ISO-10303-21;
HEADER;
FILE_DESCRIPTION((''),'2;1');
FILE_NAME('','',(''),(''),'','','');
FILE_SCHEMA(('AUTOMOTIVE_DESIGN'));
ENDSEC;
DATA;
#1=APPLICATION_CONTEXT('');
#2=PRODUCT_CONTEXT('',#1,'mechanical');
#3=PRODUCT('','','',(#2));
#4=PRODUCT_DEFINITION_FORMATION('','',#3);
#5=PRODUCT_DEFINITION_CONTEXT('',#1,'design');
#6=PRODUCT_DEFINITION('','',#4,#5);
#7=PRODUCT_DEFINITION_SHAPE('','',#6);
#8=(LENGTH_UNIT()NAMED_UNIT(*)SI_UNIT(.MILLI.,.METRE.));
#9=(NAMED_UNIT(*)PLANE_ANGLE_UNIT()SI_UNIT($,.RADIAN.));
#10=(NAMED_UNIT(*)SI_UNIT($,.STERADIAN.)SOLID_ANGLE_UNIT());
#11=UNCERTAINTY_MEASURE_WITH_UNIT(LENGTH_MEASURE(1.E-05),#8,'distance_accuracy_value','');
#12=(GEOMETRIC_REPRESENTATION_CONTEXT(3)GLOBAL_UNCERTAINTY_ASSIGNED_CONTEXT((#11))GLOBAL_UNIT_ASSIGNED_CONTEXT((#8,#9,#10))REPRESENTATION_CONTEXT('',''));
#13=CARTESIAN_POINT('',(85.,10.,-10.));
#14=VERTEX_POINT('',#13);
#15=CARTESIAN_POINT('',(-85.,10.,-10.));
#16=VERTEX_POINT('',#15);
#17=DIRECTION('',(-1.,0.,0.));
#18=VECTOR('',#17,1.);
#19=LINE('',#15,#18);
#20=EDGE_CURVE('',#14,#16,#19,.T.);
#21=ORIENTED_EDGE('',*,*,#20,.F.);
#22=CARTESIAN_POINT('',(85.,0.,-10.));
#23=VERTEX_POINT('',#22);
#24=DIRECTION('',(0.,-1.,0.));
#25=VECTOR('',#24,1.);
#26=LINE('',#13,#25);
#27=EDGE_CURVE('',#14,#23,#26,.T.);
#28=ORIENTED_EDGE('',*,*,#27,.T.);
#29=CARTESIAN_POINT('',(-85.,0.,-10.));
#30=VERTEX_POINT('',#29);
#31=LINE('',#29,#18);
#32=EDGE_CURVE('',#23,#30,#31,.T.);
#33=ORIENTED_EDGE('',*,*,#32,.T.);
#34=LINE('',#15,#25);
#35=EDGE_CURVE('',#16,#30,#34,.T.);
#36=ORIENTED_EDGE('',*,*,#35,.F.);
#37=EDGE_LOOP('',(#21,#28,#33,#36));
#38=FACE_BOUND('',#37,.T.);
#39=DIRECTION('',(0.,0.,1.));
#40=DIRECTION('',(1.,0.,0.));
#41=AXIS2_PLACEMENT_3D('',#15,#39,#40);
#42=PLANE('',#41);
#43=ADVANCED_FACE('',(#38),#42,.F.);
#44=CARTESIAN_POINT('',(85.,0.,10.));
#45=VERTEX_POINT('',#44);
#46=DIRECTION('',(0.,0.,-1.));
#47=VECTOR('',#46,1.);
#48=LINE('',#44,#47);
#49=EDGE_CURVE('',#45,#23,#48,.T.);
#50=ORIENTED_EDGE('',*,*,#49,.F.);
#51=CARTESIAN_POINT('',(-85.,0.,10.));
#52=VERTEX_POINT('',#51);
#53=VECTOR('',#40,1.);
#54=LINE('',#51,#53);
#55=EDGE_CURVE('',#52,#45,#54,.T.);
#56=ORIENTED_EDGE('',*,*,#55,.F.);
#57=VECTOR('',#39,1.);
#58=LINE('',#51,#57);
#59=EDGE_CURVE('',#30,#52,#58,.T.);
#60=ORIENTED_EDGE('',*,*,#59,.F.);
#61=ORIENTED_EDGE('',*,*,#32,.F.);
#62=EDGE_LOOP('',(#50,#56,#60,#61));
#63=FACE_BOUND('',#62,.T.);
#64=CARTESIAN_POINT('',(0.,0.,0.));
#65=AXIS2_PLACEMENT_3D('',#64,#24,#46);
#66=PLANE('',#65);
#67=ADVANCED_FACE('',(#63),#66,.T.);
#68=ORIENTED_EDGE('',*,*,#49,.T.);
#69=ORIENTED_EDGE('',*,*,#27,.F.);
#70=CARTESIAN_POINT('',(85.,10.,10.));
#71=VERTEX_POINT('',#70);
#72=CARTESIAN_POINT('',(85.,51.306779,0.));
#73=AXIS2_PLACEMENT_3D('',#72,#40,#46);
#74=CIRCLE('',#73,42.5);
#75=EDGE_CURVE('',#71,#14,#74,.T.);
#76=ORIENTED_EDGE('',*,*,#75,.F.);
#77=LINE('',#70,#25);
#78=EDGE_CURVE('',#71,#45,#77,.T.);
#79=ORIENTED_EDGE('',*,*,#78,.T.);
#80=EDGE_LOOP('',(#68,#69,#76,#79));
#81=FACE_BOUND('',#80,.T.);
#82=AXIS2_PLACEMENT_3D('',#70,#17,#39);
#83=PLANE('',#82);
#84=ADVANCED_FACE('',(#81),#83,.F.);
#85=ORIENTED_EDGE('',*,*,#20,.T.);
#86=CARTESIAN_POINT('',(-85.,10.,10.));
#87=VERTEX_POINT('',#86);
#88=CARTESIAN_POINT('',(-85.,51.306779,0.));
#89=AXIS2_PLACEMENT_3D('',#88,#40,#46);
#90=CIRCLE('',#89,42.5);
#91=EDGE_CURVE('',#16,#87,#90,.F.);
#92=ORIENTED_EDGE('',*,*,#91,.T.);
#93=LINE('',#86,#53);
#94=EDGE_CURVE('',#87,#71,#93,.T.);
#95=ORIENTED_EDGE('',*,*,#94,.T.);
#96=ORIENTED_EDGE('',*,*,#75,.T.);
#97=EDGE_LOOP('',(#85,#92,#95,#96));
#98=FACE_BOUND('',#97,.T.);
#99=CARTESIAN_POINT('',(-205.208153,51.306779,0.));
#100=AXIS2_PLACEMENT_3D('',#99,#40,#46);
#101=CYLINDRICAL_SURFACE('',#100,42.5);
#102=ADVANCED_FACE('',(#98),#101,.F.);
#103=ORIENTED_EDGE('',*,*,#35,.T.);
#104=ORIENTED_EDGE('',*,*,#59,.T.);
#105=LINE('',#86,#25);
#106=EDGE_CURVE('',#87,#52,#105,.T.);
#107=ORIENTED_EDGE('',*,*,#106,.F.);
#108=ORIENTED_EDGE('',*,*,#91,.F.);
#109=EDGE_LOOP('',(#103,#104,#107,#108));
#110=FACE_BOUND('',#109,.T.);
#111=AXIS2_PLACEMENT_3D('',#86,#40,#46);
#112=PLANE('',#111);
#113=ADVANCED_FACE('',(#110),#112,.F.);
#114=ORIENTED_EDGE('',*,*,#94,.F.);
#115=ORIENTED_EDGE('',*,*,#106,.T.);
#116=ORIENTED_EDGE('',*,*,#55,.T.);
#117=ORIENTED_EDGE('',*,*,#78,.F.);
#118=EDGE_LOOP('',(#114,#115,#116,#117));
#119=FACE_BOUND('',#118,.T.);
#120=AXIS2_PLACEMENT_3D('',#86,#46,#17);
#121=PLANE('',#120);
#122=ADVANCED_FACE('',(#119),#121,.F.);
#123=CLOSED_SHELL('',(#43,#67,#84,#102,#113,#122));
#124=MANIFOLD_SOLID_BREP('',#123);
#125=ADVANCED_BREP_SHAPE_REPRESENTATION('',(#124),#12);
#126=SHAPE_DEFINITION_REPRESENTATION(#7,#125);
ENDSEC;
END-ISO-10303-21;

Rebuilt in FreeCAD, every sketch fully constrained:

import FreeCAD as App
import Part
import Sketcher
from FreeCAD import Vector

doc = App.newDocument("Part")
body = doc.addObject("PartDesign::Body", "Body")

# Sketch on XZ plane
sketch1 = doc.addObject("Sketcher::SketchObject", "Sketch")
body.addObject(sketch1)
sketch1.AttachmentSupport = (doc.XZ_Plane, [""])
sketch1.MapMode = "FlatFace"
sketch1.addGeometry([
    Part.LineSegment(Vector(-85, -10, 0), Vector(-85, 10, 0)),
    Part.LineSegment(Vector(-85, 10, 0), Vector(85, 10, 0)),
    Part.LineSegment(Vector(85, 10, 0), Vector(85, -10, 0)),
    Part.LineSegment(Vector(85, -10, 0), Vector(-85, -10, 0)),
], False)
sketch1.addConstraint([
    Sketcher.Constraint("Coincident", 0, 2, 1, 1),
    Sketcher.Constraint("Coincident", 1, 2, 2, 1),
    Sketcher.Constraint("Coincident", 2, 2, 3, 1),
    Sketcher.Constraint("Coincident", 3, 2, 0, 1),
    Sketcher.Constraint("Vertical", 0),
    Sketcher.Constraint("Horizontal", 1),
    Sketcher.Constraint("Vertical", 2),
    Sketcher.Constraint("Horizontal", 3),
    Sketcher.Constraint("Symmetric", 0, 2, 2, 2, -1, 1),
    Sketcher.Constraint("DistanceX", 1, 1, 1, 2, 170.0),
    Sketcher.Constraint("DistanceY", 0, 1, 0, 2, 20.0),
])
pad1 = doc.addObject("PartDesign::Pad", "Pad")
body.addObject(pad1)
pad1.Profile = sketch1
pad1.Length = 10
pad1.Reversed = True

# Sketch on YZ plane
sketch2 = doc.addObject("Sketcher::SketchObject", "Sketch001")
body.addObject(sketch2)
sketch2.AttachmentSupport = (doc.YZ_Plane, [""])
sketch2.MapMode = "FlatFace"
sketch2.AttachmentOffset = App.Placement(Vector(0, 0, 85), App.Rotation())
sketch2.addGeometry(Part.Circle(Vector(51.306779, 0, 0), Vector(0, 0, 1), 42.5), False)
sketch2.addConstraint([
    Sketcher.Constraint("PointOnObject", 0, 3, -1),
    Sketcher.Constraint("Diameter", 0, 85.0),
    Sketcher.Constraint("DistanceX", -1, 1, 0, 3, 51.306779),
])
pocket1 = doc.addObject("PartDesign::Pocket", "Pocket")
body.addObject(pocket1)
pocket1.Profile = sketch2
pocket1.Length = 170

doc.recompute()
